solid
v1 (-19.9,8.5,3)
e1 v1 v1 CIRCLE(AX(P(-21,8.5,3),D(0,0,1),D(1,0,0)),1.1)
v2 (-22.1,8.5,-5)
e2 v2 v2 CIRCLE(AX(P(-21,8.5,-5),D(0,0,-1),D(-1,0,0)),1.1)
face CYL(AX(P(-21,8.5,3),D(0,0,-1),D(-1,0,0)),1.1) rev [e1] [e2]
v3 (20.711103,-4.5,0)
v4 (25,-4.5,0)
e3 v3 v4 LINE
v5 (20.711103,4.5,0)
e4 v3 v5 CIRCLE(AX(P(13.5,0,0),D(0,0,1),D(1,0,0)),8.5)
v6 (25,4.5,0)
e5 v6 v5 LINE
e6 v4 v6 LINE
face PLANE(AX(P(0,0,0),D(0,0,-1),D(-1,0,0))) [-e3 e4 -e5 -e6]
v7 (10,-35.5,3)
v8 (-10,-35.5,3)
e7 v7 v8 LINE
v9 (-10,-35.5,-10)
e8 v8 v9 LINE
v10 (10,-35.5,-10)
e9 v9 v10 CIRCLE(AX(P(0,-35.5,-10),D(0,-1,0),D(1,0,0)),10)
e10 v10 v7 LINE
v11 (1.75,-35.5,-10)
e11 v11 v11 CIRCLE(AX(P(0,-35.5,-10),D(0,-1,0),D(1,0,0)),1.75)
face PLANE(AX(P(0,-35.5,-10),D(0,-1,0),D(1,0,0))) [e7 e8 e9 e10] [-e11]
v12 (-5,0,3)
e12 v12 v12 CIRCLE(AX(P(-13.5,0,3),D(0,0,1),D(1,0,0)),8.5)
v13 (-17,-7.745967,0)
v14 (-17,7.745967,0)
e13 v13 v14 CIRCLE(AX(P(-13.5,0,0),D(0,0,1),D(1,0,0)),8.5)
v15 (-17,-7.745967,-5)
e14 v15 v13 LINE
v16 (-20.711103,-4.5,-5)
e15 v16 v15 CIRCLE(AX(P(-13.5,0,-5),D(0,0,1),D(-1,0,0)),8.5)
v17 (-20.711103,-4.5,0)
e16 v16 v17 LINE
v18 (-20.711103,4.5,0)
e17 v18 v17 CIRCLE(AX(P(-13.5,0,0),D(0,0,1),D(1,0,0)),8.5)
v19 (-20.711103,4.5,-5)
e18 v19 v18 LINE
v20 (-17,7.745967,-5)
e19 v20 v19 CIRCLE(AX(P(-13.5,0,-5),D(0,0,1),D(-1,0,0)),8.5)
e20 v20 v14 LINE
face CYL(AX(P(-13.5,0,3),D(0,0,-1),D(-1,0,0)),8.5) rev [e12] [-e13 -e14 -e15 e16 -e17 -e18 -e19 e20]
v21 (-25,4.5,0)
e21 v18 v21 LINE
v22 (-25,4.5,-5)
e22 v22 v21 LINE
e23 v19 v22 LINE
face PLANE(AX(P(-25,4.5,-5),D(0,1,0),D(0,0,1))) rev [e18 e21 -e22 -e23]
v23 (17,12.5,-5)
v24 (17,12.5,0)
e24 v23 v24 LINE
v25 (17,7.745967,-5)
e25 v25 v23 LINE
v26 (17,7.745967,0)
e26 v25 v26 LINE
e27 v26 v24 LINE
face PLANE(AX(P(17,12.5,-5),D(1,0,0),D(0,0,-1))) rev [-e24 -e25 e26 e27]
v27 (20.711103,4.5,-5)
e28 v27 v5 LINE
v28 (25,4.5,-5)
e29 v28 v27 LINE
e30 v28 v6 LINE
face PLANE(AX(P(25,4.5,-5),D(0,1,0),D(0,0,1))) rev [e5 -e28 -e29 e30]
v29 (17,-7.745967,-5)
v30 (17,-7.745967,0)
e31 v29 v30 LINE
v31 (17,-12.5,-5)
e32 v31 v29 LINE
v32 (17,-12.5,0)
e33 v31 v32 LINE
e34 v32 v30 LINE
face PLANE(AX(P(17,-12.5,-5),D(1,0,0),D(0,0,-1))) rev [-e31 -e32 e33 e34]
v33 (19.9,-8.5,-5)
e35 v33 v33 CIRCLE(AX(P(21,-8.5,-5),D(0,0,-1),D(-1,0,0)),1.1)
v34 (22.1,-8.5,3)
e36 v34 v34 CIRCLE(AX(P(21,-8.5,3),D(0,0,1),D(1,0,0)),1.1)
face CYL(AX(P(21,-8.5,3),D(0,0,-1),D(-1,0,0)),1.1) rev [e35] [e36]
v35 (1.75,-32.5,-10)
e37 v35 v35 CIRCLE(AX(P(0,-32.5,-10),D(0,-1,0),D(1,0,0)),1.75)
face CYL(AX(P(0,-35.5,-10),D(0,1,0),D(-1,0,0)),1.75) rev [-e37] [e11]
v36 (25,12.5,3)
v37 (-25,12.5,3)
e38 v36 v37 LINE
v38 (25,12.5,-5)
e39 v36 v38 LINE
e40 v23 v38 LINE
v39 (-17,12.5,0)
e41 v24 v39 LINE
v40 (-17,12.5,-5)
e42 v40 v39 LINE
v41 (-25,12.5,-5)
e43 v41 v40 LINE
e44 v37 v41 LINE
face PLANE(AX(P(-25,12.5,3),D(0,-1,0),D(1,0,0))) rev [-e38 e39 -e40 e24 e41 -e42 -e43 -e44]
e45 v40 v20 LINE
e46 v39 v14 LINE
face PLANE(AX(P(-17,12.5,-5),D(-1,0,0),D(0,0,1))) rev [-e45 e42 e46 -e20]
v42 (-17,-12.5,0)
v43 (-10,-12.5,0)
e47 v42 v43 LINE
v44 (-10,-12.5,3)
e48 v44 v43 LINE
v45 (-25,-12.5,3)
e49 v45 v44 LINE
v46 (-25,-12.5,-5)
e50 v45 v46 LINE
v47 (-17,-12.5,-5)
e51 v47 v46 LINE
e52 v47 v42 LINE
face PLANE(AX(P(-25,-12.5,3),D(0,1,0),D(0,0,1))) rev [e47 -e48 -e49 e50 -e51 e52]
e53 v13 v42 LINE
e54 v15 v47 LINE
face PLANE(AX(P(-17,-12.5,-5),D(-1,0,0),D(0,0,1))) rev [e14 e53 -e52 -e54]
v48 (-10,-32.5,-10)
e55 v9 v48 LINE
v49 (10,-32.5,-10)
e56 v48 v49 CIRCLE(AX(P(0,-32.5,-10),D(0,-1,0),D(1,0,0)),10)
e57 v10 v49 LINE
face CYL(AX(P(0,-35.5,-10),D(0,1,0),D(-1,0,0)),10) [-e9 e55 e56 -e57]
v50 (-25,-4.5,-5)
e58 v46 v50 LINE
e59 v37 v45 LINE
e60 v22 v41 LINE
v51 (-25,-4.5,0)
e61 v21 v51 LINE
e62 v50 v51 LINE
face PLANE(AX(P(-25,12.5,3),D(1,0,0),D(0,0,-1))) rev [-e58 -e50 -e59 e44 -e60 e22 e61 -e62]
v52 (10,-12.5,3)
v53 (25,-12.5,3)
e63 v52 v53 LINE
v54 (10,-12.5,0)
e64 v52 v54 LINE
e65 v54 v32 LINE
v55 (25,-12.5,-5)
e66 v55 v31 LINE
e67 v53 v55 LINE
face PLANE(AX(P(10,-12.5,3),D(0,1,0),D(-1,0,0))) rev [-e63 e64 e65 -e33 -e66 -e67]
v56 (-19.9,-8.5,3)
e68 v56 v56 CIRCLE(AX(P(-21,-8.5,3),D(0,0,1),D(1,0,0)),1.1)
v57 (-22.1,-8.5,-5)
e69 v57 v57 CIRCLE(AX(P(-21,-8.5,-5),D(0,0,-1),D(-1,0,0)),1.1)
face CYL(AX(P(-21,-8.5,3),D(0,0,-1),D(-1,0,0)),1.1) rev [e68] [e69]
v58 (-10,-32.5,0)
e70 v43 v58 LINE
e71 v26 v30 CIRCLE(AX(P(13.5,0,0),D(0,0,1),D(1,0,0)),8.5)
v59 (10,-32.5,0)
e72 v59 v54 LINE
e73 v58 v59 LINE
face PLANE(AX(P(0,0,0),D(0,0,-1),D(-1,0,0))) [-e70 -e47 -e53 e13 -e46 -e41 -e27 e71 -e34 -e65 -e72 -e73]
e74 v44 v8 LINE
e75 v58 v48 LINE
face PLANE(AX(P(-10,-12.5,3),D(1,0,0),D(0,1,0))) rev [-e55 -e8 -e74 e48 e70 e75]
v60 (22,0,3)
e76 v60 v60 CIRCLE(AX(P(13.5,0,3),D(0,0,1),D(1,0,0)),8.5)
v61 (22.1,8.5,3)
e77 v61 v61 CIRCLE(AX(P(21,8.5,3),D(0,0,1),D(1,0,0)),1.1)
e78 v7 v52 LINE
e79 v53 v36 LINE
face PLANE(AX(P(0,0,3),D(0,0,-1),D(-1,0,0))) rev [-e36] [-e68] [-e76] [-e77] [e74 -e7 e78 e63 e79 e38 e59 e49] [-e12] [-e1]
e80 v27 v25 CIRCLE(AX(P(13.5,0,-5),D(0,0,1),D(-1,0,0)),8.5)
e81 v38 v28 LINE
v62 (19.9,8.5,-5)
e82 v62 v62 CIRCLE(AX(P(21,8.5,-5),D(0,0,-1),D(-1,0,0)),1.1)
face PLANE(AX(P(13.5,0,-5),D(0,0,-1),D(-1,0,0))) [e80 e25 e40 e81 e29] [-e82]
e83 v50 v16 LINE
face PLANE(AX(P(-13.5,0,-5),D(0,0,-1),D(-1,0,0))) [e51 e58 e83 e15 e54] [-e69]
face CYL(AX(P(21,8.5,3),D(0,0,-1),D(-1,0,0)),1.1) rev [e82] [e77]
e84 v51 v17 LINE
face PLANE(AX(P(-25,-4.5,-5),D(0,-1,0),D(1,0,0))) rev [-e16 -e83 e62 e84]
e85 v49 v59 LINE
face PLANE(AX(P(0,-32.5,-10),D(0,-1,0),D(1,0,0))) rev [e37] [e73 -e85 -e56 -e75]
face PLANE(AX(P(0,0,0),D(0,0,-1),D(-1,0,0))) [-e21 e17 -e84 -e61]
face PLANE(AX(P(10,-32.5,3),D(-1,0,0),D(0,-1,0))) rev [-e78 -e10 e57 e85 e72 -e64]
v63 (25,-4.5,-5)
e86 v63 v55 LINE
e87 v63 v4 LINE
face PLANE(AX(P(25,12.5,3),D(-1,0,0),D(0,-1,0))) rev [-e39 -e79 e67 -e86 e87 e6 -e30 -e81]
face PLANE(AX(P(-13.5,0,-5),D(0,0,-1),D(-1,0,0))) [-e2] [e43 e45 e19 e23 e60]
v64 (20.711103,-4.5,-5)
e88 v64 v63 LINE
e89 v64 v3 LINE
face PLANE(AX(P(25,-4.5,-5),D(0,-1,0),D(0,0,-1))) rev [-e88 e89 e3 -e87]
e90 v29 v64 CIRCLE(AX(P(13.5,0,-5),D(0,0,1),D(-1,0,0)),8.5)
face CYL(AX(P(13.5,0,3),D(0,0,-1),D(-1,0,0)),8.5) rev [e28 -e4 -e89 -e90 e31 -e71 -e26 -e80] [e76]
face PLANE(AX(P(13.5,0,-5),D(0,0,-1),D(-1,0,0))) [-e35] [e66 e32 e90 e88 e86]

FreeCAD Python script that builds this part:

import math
import FreeCAD as App
import Part
import Sketcher
from FreeCAD import Vector
Q = App.Units.Quantity


def add_polygon(sketch, points):
    """Adds a closed chain of lines whose ends are joined by coincident constraints."""
    first, n = sketch.GeometryCount, len(points)
    for a, b in zip(points, points[1:] + points[:1]):
        sketch.addGeometry(Part.LineSegment(App.Vector(*a, 0), App.Vector(*b, 0)), False)
    for i in range(n):
        sketch.addConstraint(Sketcher.Constraint("Coincident", first + i, 2, first + (i + 1) % n, 1))

doc = App.newDocument("Part")
body = doc.addObject("PartDesign::Body", "Body")

# Sketch on XY plane
sketch1 = body.newObject("Sketcher::SketchObject", "Sketch")
sketch1.AttachmentSupport = (doc.getObject("XY_Plane"), [""])
sketch1.MapMode = "FlatFace"
add_polygon(sketch1, [(25, 12.5), (-25, 12.5), (-25, -12.5), (-10, -12.5), (-10, -32.5), (10, -32.5), (10, -12.5), (25, -12.5)])  # lines 0-7
sketch1.addGeometry(Part.Circle(Vector(21, -8.5, 0), Vector(0, 0, 1), 1.1), False)  # 8
sketch1.addGeometry(Part.Circle(Vector(-21, -8.5, 0), Vector(0, 0, 1), 1.1), False)  # 9
sketch1.addGeometry(Part.Circle(Vector(13.5, 0, 0), Vector(0, 0, 1), 8.5), False)  # 10
sketch1.addGeometry(Part.Circle(Vector(21, 8.5, 0), Vector(0, 0, 1), 1.1), False)  # 11
sketch1.addGeometry(Part.Circle(Vector(-13.5, 0, 0), Vector(0, 0, 1), 8.5), False)  # 12
sketch1.addGeometry(Part.Circle(Vector(-21, 8.5, 0), Vector(0, 0, 1), 1.1), False)  # 13
sketch1.addConstraint([
    Sketcher.Constraint("Horizontal", 0),
    Sketcher.Constraint("Vertical", 1),
    Sketcher.Constraint("Horizontal", 2),
    Sketcher.Constraint("Vertical", 3),
    Sketcher.Constraint("Horizontal", 4),
    Sketcher.Constraint("Vertical", 5),
    Sketcher.Constraint("Horizontal", 6),
    Sketcher.Constraint("Vertical", 7),
    Sketcher.Constraint("Equal", 8, 9),
    Sketcher.Constraint("Equal", 9, 11),
    Sketcher.Constraint("Equal", 10, 12),
    Sketcher.Constraint("Equal", 11, 13),
    Sketcher.Constraint("Symmetric", 9, 3, 11, 3, -1, 1),
    Sketcher.Constraint("Symmetric", 10, 3, 12, 3, -1, 1),
    Sketcher.Constraint("Symmetric", 8, 3, 13, 3, -1, 1),
    Sketcher.Constraint("Symmetric", 0, 2, 6, 2, -1, 1),
    Sketcher.Constraint("Symmetric", 8, 3, 9, 3, -2),
    Sketcher.Constraint("Symmetric", 2, 2, 5, 2, -2),
    Sketcher.Constraint("PointOnObject", 10, 3, -1),
    Sketcher.Constraint("Equal", 4, 3),
    Sketcher.Constraint("Diameter", 10, Q("17 mm")),
    Sketcher.Constraint("Diameter", 8, Q("2.2 mm")),
    Sketcher.Constraint("DistanceX", 0, 2, 0, 1, Q("50 mm")),
    Sketcher.Constraint("DistanceX", 2, 1, 2, 2, Q("15 mm")),
    Sketcher.Constraint("DistanceY", 1, 2, 1, 1, Q("25 mm")),
    Sketcher.Constraint("DistanceX", -1, 1, 8, 3, Q("21 mm")),
    Sketcher.Constraint("DistanceY", 8, 3, 11, 3, Q("17 mm")),
    Sketcher.Constraint("DistanceX", 12, 3, 10, 3, Q("27 mm")),
])
pad1 = body.newObject("PartDesign::Pad", "Pad")
pad1.Profile = sketch1
pad1.Length = 3

# Sketch on XZ plane
sketch2 = body.newObject("Sketcher::SketchObject", "Sketch001")
sketch2.AttachmentSupport = (doc.getObject("XZ_Plane"), [""])
sketch2.MapMode = "FlatFace"
sketch2.AttachmentOffset = App.Placement(Vector(0, 0, 32.5), App.Rotation())
sketch2.addGeometry([
    Part.LineSegment(Vector(-10, 3, 0), Vector(-10, -10, 0)),  # 0
    Part.ArcOfCircle(Part.Circle(Vector(0, -10, 0), Vector(0, 0, 1), 10), math.radians(180), math.radians(360)),  # 1
    Part.LineSegment(Vector(10, -10, 0), Vector(10, 3, 0)),  # 2
    Part.LineSegment(Vector(10, 3, 0), Vector(-10, 3, 0)),  # 3
    Part.Circle(Vector(0, -10, 0), Vector(0, 0, 1), 1.8),  # 4
], False)
sketch2.addConstraint([
    Sketcher.Constraint("Tangent", 0, 2, 1, 1),
    Sketcher.Constraint("Tangent", 1, 2, 2, 1),
    Sketcher.Constraint("Coincident", 2, 2, 3, 1),
    Sketcher.Constraint("Coincident", 3, 2, 0, 1),
    Sketcher.Constraint("Vertical", 0),
    Sketcher.Constraint("Vertical", 2),
    Sketcher.Constraint("Horizontal", 3),
    Sketcher.Constraint("Coincident", 4, 3, 1, 3),
    Sketcher.Constraint("PointOnObject", 1, 3, -2),
    Sketcher.Constraint("Radius", 1, Q("10 mm")),
    Sketcher.Constraint("Diameter", 4, Q("3.5 mm")),
    Sketcher.Constraint("DistanceY", 0, 2, 0, 1, Q("13 mm")),
    Sketcher.Constraint("DistanceY", 1, 3, -1, 1, Q("10 mm")),
])
pad2 = body.newObject("PartDesign::Pad", "Pad001")
pad2.Profile = sketch2
pad2.Length = 3

# Sketch on XY plane
sketch3 = body.newObject("Sketcher::SketchObject", "Sketch002")
sketch3.AttachmentSupport = (doc.getObject("XY_Plane"), [""])
sketch3.MapMode = "FlatFace"
sketch3.AttachmentOffset = App.Placement(Vector(0, 0, -5), App.Rotation())
sketch3.addGeometry([
    Part.LineSegment(Vector(17, 12.5, 0), Vector(25, 12.5, 0)),  # 0
    Part.LineSegment(Vector(25, 12.5, 0), Vector(25, 4.5, 0)),  # 1
    Part.LineSegment(Vector(25, 4.5, 0), Vector(20.7, 4.5, 0)),  # 2
    Part.ArcOfCircle(Part.Circle(Vector(13.5, 0, 0), Vector(0, 0, 1), 8.5), math.radians(32), math.radians(66)),  # 3
    Part.LineSegment(Vector(17, 7.7, 0), Vector(17, 12.5, 0)),  # 4
    Part.Circle(Vector(21, 8.5, 0), Vector(0, 0, 1), 1.1),  # 5
    Part.LineSegment(Vector(25, -12.5, 0), Vector(17, -12.5, 0)),  # 6
    Part.LineSegment(Vector(17, -12.5, 0), Vector(17, -7.7, 0)),  # 7
    Part.ArcOfCircle(Part.Circle(Vector(13.5, 0, 0), Vector(0, 0, 1), 8.5), math.radians(-66), math.radians(-32)),  # 8
    Part.LineSegment(Vector(20.7, -4.5, 0), Vector(25, -4.5, 0)),  # 9
    Part.LineSegment(Vector(25, -4.5, 0), Vector(25, -12.5, 0)),  # 10
    Part.Circle(Vector(21, -8.5, 0), Vector(0, 0, 1), 1.1),  # 11
    Part.LineSegment(Vector(-25, 12.5, 0), Vector(-17, 12.5, 0)),  # 12
    Part.LineSegment(Vector(-17, 12.5, 0), Vector(-17, 7.7, 0)),  # 13
    Part.ArcOfCircle(Part.Circle(Vector(-13.5, 0, 0), Vector(0, 0, 1), 8.5), math.radians(114), math.radians(148)),  # 14
    Part.LineSegment(Vector(-20.7, 4.5, 0), Vector(-25, 4.5, 0)),  # 15
    Part.LineSegment(Vector(-25, 4.5, 0), Vector(-25, 12.5, 0)),  # 16
    Part.Circle(Vector(-21, 8.5, 0), Vector(0, 0, 1), 1.1),  # 17
    Part.LineSegment(Vector(-17, -12.5, 0), Vector(-25, -12.5, 0)),  # 18
    Part.LineSegment(Vector(-25, -12.5, 0), Vector(-25, -4.5, 0)),  # 19
    Part.LineSegment(Vector(-25, -4.5, 0), Vector(-20.7, -4.5, 0)),  # 20
    Part.ArcOfCircle(Part.Circle(Vector(-13.5, 0, 0), Vector(0, 0, 1), 8.5), math.radians(-148), math.radians(-114)),  # 21
    Part.LineSegment(Vector(-17, -7.7, 0), Vector(-17, -12.5, 0)),  # 22
    Part.Circle(Vector(-21, -8.5, 0), Vector(0, 0, 1), 1.1),  # 23
], False)
sketch3.addConstraint([
    Sketcher.Constraint("Coincident", 0, 2, 1, 1),
    Sketcher.Constraint("Coincident", 1, 2, 2, 1),
    Sketcher.Constraint("Coincident", 2, 2, 3, 1),
    Sketcher.Constraint("Coincident", 3, 2, 4, 1),
    Sketcher.Constraint("Coincident", 4, 2, 0, 1),
    Sketcher.Constraint("Coincident", 6, 2, 7, 1),
    Sketcher.Constraint("Coincident", 7, 2, 8, 1),
    Sketcher.Constraint("Coincident", 8, 2, 9, 1),
    Sketcher.Constraint("Coincident", 9, 2, 10, 1),
    Sketcher.Constraint("Coincident", 10, 2, 6, 1),
    Sketcher.Constraint("Coincident", 12, 2, 13, 1),
    Sketcher.Constraint("Coincident", 13, 2, 14, 1),
    Sketcher.Constraint("Coincident", 14, 2, 15, 1),
    Sketcher.Constraint("Coincident", 15, 2, 16, 1),
    Sketcher.Constraint("Coincident", 16, 2, 12, 1),
    Sketcher.Constraint("Coincident", 18, 2, 19, 1),
    Sketcher.Constraint("Coincident", 19, 2, 20, 1),
    Sketcher.Constraint("Coincident", 20, 2, 21, 1),
    Sketcher.Constraint("Coincident", 21, 2, 22, 1),
    Sketcher.Constraint("Coincident", 22, 2, 18, 1),
    Sketcher.Constraint("Horizontal", 0),
    Sketcher.Constraint("Vertical", 1),
    Sketcher.Constraint("Horizontal", 2),
    Sketcher.Constraint("Vertical", 4),
    Sketcher.Constraint("Horizontal", 6),
    Sketcher.Constraint("Vertical", 7),
    Sketcher.Constraint("Horizontal", 9),
    Sketcher.Constraint("Vertical", 10),
    Sketcher.Constraint("Horizontal", 12),
    Sketcher.Constraint("Vertical", 13),
    Sketcher.Constraint("Horizontal", 15),
    Sketcher.Constraint("Vertical", 16),
    Sketcher.Constraint("Horizontal", 18),
    Sketcher.Constraint("Vertical", 19),
    Sketcher.Constraint("Horizontal", 20),
    Sketcher.Constraint("Vertical", 22),
    Sketcher.Constraint("Coincident", 8, 3, 3, 3),
    Sketcher.Constraint("Coincident", 21, 3, 14, 3),
    Sketcher.Constraint("Equal", 3, 8),
    Sketcher.Constraint("Equal", 5, 11),
    Sketcher.Constraint("Equal", 8, 14),
    Sketcher.Constraint("Equal", 11, 17),
    Sketcher.Constraint("Equal", 14, 21),
    Sketcher.Constraint("Equal", 17, 23),
    Sketcher.Constraint("Symmetric", 3, 3, 14, 3, -1, 1),
    Sketcher.Constraint("Symmetric", 11, 3, 17, 3, -1, 1),
    Sketcher.Constraint("Symmetric", 5, 3, 23, 3, -1, 1),
    Sketcher.Constraint("Symmetric", 6, 2, 12, 2, -1, 1),
    Sketcher.Constraint("Symmetric", 9, 2, 15, 2, -1, 1),
    Sketcher.Constraint("Symmetric", 0, 2, 18, 2, -1, 1),
    Sketcher.Constraint("Symmetric", 5, 3, 17, 3, -2),
    Sketcher.Constraint("Symmetric", 4, 2, 12, 2, -2),
    Sketcher.Constraint("Symmetric", 2, 2, 14, 2, -2),
    Sketcher.Constraint("Symmetric", 9, 2, 19, 2, -2),
    Sketcher.Constraint("Horizontal", 7, 2, 21, 2),
    Sketcher.Constraint("Equal", 18, 1),
    Sketcher.Constraint("Diameter", 5, Q("2.2 mm")),
    Sketcher.Constraint("Radius", 3, Q("8.5 mm")),
    Sketcher.Constraint("DistanceX", 0, 1, 0, 2, Q("8 mm")),
    Sketcher.Constraint("DistanceX", -1, 1, 5, 3, Q("21 mm")),
    Sketcher.Constraint("DistanceX", -1, 1, 0, 2, Q("25 mm")),
    Sketcher.Constraint("DistanceY", 11, 3, 5, 3, Q("17 mm")),
    Sketcher.Constraint("DistanceX", 14, 3, 3, 3, Q("27 mm")),
    Sketcher.Constraint("DistanceY", 5, 3, 0, 2, Q("4 mm")),
])
pad3 = body.newObject("PartDesign::Pad", "Pad002")
pad3.Profile = sketch3
pad3.Length = 5

doc.recompute()
